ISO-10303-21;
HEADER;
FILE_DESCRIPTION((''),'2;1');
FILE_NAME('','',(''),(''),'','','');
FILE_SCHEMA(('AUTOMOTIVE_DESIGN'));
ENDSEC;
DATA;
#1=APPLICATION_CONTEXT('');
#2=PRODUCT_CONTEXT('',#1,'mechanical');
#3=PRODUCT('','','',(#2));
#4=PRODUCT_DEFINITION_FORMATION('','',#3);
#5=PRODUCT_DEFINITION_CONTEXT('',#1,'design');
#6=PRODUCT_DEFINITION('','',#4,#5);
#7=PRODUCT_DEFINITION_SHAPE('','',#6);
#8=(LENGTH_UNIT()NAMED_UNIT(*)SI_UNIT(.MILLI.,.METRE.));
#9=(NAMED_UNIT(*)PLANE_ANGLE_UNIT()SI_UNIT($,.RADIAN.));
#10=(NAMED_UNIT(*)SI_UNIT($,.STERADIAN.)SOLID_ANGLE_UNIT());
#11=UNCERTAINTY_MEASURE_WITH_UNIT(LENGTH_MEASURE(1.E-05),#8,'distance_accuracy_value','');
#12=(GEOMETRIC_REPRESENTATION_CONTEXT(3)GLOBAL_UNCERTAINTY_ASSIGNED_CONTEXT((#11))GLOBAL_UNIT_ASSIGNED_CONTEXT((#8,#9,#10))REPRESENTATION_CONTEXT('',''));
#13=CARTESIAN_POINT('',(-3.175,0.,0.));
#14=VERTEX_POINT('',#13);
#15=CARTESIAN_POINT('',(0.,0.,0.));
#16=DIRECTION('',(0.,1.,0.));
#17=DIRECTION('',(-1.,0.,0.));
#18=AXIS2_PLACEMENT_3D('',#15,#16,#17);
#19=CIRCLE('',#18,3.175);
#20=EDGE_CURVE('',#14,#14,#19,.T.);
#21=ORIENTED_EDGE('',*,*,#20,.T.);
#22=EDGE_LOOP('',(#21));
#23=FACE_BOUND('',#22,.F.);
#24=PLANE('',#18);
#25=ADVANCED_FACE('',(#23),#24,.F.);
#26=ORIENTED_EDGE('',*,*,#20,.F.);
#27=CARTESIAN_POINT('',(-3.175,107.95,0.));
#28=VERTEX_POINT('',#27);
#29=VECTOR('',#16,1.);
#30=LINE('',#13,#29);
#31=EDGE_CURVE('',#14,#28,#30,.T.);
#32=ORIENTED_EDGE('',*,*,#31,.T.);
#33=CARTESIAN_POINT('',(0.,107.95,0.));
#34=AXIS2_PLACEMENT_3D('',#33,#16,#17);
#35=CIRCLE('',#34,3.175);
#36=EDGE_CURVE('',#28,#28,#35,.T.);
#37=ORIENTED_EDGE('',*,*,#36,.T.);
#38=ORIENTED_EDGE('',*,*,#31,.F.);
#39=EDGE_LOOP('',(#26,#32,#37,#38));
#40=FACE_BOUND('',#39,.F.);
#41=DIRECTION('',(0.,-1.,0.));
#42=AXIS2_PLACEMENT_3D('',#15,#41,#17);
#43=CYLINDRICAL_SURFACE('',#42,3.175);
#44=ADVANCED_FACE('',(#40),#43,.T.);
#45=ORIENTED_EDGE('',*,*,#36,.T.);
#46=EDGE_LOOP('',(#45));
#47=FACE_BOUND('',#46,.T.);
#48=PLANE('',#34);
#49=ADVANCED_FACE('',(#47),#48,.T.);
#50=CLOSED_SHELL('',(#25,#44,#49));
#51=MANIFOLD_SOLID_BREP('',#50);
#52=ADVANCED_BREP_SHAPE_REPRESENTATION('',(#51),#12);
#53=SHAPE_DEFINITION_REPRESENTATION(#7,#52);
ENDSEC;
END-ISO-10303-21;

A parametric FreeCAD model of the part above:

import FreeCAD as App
import Part
import Sketcher
Q = App.Units.Quantity

doc = App.newDocument("Part")
body = doc.addObject("PartDesign::Body", "Body")

sketch1 = body.newObject("Sketcher::SketchObject", "Sketch")
sketch1.AttachmentSupport = (doc.getObject("XZ_Plane"), [""])
sketch1.MapMode = "FlatFace"
sketch1.addGeometry(Part.Circle(App.Vector(0, 0, 0), App.Vector(0, 0, 1), 3.175), False)
sketch1.addConstraint([
    Sketcher.Constraint("Coincident", 0, 3, -1, 1),
    Sketcher.Constraint("Diameter", 0, Q("0.25 in")),
])
pad1 = body.newObject("PartDesign::Pad", "Pad")
pad1.Profile = sketch1
pad1.Length = Q("4.25 in")
pad1.Reversed = True

doc.recompute()
